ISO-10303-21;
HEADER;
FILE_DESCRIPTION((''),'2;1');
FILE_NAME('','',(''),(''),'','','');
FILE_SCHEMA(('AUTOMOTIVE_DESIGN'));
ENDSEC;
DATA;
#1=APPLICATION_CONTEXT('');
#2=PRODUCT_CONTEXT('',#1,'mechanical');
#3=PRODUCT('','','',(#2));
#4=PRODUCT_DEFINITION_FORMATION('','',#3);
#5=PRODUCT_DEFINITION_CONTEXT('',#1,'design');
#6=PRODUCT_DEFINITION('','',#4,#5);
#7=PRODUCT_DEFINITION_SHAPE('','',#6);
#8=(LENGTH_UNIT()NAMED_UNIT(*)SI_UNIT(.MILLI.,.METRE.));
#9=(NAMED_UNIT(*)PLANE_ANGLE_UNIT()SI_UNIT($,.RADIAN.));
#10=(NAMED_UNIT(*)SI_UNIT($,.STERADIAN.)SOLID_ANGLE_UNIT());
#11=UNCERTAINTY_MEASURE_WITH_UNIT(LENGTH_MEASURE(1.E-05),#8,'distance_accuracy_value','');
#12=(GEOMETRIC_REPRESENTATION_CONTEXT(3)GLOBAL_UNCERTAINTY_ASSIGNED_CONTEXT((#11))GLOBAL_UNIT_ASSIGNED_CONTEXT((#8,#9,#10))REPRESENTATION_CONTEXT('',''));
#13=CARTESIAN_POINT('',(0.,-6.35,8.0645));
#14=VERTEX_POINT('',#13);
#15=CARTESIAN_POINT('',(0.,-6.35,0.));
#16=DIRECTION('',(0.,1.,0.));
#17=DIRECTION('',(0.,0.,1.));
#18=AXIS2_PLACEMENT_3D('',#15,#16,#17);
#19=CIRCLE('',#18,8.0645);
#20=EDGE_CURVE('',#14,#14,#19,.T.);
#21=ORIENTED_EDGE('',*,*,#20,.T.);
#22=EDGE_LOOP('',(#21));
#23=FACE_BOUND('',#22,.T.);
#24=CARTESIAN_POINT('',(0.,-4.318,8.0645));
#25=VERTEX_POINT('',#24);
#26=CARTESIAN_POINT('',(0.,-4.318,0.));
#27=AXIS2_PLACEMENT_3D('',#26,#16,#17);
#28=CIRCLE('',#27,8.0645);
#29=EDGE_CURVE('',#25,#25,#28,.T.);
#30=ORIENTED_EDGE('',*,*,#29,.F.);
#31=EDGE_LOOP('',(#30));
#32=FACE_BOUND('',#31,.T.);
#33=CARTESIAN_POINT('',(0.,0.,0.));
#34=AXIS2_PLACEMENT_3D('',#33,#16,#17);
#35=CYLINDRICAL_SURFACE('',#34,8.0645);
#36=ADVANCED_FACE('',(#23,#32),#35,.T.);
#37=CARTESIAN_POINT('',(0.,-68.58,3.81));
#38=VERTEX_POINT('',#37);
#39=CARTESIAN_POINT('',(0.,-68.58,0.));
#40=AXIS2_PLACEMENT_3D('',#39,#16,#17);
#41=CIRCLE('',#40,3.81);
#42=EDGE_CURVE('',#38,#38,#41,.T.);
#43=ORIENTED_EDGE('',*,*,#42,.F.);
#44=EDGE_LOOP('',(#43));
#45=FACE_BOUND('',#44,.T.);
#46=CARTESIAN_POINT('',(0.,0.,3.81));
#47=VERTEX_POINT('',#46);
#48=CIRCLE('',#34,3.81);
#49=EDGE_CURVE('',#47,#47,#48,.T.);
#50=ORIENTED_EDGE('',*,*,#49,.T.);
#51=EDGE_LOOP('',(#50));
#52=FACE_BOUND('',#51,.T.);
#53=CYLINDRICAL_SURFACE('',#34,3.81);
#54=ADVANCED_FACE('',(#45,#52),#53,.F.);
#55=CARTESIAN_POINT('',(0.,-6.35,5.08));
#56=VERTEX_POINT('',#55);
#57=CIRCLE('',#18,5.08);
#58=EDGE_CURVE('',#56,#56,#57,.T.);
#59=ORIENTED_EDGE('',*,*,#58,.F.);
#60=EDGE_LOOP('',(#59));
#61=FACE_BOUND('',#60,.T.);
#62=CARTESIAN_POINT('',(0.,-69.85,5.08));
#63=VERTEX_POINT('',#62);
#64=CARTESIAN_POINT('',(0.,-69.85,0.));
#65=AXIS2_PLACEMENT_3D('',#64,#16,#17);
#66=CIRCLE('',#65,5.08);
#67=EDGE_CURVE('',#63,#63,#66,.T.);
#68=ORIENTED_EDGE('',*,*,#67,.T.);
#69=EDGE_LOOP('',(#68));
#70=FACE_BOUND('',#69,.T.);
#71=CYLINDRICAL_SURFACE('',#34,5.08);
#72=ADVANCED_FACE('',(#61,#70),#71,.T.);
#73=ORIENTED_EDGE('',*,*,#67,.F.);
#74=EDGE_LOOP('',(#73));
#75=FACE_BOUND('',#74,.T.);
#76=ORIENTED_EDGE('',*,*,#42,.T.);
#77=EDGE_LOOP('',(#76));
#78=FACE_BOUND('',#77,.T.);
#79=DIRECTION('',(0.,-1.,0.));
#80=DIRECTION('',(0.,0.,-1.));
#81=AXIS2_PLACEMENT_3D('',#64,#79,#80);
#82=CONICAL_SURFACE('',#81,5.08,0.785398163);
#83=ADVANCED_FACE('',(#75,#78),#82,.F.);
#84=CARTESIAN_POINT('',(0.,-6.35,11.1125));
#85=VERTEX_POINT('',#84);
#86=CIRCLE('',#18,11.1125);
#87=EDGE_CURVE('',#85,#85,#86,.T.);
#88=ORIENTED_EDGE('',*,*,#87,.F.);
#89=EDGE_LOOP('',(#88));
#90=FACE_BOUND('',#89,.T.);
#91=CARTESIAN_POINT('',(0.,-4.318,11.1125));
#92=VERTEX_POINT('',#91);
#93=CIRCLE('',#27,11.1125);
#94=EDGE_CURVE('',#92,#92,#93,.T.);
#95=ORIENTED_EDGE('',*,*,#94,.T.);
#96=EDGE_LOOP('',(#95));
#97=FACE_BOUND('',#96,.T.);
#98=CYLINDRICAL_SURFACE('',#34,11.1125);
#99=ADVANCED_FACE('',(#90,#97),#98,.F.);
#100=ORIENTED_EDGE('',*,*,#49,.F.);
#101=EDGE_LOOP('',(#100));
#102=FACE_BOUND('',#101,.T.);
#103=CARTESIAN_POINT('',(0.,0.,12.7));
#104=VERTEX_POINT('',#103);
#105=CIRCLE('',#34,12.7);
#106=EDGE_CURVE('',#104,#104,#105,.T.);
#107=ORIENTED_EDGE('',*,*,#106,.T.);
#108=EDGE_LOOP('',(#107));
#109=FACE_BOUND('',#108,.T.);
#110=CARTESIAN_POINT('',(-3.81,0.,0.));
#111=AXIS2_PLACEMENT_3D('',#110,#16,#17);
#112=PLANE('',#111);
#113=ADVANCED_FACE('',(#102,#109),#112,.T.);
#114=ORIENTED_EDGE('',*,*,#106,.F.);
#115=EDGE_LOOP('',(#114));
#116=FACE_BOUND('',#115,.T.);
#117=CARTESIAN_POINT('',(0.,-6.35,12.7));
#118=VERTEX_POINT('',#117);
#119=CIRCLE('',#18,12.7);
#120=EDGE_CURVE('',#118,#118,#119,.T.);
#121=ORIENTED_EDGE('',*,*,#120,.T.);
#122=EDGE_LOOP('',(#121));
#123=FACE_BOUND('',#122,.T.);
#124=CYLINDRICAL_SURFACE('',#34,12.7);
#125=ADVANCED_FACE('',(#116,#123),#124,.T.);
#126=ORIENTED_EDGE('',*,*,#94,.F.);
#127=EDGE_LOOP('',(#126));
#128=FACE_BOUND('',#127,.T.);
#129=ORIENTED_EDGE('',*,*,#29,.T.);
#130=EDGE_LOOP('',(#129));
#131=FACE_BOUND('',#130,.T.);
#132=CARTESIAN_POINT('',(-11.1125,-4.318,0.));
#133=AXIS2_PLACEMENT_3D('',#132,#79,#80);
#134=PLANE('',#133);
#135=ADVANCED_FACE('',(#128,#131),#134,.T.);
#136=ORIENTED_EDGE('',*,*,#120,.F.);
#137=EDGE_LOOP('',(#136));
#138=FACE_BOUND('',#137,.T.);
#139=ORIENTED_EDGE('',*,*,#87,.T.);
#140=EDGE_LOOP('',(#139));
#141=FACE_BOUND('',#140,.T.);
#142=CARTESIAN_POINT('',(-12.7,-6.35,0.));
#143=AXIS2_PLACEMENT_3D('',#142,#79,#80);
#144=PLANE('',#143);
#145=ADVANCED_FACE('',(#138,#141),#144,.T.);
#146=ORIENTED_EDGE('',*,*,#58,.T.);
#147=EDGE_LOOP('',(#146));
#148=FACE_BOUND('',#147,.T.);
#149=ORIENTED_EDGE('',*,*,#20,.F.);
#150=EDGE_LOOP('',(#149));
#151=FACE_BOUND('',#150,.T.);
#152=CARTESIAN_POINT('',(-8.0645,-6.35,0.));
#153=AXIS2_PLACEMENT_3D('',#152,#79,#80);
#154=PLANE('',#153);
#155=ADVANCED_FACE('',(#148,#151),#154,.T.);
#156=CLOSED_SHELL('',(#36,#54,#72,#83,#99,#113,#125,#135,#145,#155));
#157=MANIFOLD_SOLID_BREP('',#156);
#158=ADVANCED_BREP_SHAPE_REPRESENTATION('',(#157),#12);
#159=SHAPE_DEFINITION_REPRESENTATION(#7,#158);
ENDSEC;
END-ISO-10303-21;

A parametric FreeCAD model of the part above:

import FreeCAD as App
import Part
import Sketcher
from FreeCAD import Vector
Q = App.Units.Quantity


def add_polygon(sketch, points):
    """Adds a closed chain of lines whose ends are joined by coincident constraints."""
    first, n = sketch.GeometryCount, len(points)
    for a, b in zip(points, points[1:] + points[:1]):
        sketch.addGeometry(Part.LineSegment(App.Vector(*a, 0), App.Vector(*b, 0)), False)
    for i in range(n):
        sketch.addConstraint(Sketcher.Constraint("Coincident", first + i, 2, first + (i + 1) % n, 1))

doc = App.newDocument("Part")
body = doc.addObject("PartDesign::Body", "Body")

# Sketch on XY plane
sketch1 = body.newObject("Sketcher::SketchObject", "Sketch")
sketch1.AttachmentSupport = (doc.getObject("XY_Plane"), [""])
sketch1.MapMode = "FlatFace"
add_polygon(sketch1, [(-3.8, 0), (-12.7, 0), (-12.7, -6.3), (-11.1, -6.3), (-11.1, -4.3), (-8.1, -4.3), (-8.1, -6.3), (-5.1, -6.3), (-5.1, -69.8), (-3.8, -68.6)])  # lines 0-9
sketch1.addConstraint(Sketcher.Constraint("Horizontal", 0))
sketch1.addConstraint(Sketcher.Constraint("Vertical", 1))
sketch1.addConstraint(Sketcher.Constraint("Horizontal", 2))
sketch1.addConstraint(Sketcher.Constraint("Vertical", 3))
sketch1.addConstraint(Sketcher.Constraint("Horizontal", 4))
sketch1.addConstraint(Sketcher.Constraint("Vertical", 5))
sketch1.addConstraint(Sketcher.Constraint("Horizontal", 6))
sketch1.addConstraint(Sketcher.Constraint("Vertical", 7))
sketch1.addConstraint(Sketcher.Constraint("Vertical", 9))
sketch1.addConstraint(Sketcher.Constraint("PointOnObject", 0, 2, -1))
sketch1.addConstraint(Sketcher.Constraint("Horizontal", 2, 2, 5, 2))
sketch1.addConstraint(Sketcher.Constraint("DistanceY", 7, 2, 7, 1, Q("2.5 in")))
sketch1.addConstraint(Sketcher.Constraint("DistanceY", 9, 1, 9, 2, Q("2.7 in")))
sketch1.addConstraint(Sketcher.Constraint("Angle", 8, Q("45 deg")))
sketch1.addConstraint(Sketcher.Constraint("DistanceX", 0, 2, 0, 1, Q("0.35 in")))
sketch1.addConstraint(Sketcher.Constraint("DistanceX", 4, 1, 4, 2, Q("0.12 in")))
sketch1.addConstraint(Sketcher.Constraint("DistanceY", 1, 2, 1, 1, Q("0.25 in")))
sketch1.addConstraint(Sketcher.Constraint("DistanceY", 3, 1, 3, 2, Q("0.08 in")))
sketch1.addConstraint(Sketcher.Constraint("DistanceX", 0, 2, -1, 1, Q("0.5 in")))
sketch1.addConstraint(Sketcher.Constraint("DistanceX", 2, 1, 2, 2, Q("0.0625 in")))
revolution = body.newObject("PartDesign::Revolution", "Revolution")
revolution.Profile = sketch1
revolution.ReferenceAxis = (sketch1, ["V_Axis"])
revolution.Angle = 360

doc.recompute()
